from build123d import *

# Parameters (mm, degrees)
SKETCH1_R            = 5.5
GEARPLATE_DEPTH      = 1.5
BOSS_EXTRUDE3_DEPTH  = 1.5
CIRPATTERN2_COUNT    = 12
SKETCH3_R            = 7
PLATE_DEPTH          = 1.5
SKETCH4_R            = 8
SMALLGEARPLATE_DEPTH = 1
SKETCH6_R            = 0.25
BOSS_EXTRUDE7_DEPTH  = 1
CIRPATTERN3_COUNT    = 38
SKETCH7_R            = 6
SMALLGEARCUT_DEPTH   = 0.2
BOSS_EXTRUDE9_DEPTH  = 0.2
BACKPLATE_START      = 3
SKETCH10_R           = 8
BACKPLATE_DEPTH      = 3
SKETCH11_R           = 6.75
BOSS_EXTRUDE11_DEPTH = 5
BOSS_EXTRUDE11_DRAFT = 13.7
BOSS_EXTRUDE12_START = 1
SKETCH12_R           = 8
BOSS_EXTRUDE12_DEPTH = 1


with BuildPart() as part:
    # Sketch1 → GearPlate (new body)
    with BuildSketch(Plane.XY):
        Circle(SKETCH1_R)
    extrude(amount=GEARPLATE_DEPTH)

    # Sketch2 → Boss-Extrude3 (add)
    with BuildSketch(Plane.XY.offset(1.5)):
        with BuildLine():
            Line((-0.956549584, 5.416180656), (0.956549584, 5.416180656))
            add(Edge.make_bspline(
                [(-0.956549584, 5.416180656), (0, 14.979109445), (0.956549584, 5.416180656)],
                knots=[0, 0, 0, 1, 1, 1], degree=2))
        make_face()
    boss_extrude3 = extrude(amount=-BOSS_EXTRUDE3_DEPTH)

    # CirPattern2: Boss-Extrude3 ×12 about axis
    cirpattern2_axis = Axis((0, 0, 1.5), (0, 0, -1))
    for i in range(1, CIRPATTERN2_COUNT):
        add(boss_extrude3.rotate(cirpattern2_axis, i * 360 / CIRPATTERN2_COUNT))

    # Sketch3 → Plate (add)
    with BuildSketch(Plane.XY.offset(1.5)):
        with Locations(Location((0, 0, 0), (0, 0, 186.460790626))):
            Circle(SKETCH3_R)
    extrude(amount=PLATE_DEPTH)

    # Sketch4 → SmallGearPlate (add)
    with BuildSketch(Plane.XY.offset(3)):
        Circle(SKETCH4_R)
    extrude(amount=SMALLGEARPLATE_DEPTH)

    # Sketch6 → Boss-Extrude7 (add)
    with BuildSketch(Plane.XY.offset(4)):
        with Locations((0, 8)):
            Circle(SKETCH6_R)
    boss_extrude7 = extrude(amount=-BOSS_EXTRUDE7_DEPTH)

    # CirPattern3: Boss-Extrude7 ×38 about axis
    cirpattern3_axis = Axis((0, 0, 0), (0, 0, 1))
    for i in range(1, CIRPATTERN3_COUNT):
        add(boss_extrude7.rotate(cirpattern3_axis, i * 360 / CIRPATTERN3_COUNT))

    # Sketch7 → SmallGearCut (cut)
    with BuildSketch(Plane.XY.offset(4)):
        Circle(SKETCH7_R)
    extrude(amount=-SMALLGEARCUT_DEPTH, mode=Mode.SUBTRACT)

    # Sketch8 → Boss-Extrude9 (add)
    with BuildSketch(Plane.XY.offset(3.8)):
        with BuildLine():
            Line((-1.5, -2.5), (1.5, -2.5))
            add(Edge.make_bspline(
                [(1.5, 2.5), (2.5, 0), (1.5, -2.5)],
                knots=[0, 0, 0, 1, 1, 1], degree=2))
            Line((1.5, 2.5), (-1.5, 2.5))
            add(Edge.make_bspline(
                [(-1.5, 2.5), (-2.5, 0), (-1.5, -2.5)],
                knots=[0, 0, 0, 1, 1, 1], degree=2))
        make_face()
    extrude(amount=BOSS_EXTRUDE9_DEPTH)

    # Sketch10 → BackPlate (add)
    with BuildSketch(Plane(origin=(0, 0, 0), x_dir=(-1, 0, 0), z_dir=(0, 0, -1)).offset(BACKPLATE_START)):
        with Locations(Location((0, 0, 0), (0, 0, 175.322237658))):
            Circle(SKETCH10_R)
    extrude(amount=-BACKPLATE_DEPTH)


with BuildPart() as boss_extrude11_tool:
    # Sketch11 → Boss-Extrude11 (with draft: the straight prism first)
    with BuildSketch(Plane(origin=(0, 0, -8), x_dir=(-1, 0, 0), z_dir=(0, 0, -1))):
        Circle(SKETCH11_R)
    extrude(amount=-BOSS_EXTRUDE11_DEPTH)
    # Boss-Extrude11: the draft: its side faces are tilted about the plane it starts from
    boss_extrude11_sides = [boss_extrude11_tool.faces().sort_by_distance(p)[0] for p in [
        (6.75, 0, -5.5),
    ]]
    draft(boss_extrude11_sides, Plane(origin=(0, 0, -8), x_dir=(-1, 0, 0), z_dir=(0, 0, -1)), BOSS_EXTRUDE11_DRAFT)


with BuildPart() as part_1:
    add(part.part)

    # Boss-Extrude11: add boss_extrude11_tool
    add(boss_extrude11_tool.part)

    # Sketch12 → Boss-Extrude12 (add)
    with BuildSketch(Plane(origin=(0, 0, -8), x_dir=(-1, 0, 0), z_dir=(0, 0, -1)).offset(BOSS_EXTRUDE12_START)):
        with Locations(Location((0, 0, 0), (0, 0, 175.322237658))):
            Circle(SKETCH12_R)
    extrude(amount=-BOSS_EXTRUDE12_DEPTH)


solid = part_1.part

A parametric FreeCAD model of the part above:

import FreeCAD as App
import Part
import Sketcher


def faces_at(feature, points):
    """Names of the faces that lie closest to the given points."""
    faces = feature.Shape.Faces
    near = lambda p: min(range(len(faces)), key=lambda i: faces[i].distToShape(Part.Vertex(*p))[0])
    return sorted({f"Face{near(p) + 1}" for p in points})

doc = App.newDocument("Part")
body = doc.addObject("PartDesign::Body", "Body")

# Sketch on XY plane
sketch1 = body.newObject("Sketcher::SketchObject", "Sketch")
sketch1.AttachmentSupport = (doc.getObject("XY_Plane"), [""])
sketch1.MapMode = "FlatFace"
sketch1.addGeometry(Part.Circle(App.Vector(0, 0, 0), App.Vector(0, 0, 1), 5.5), False)
sketch1.addConstraint(Sketcher.Constraint("Coincident", 0, 3, -1, 1))
sketch1.addConstraint(Sketcher.Constraint("Diameter", 0, 11.0))
pad1 = body.newObject("PartDesign::Pad", "Pad")
pad1.Profile = sketch1
pad1.Length = 1.5

# Sketch on XY plane
sketch2 = body.newObject("Sketcher::SketchObject", "Sketch001")
sketch2.AttachmentSupport = (doc.getObject("XY_Plane"), [""])
sketch2.MapMode = "FlatFace"
sketch2.AttachmentOffset = App.Placement(App.Vector(0, 0, 1.5), App.Rotation())
sketch2.addGeometry(Part.LineSegment(App.Vector(-0.95655, 5.416181, 0), App.Vector(0.95655, 5.416181, 0)), False)
sketch2.addGeometry(Part.BSplineCurve([App.Vector(-0.95655, 5.416181, 0), App.Vector(0, 14.979109, 0), App.Vector(0.95655, 5.416181, 0)], [3, 3], [0, 1], False, 2, [1, 1, 1], False), False)
sketch2.addConstraint(Sketcher.Constraint("Block", 1))
sketch2.addConstraint(Sketcher.Constraint("Coincident", 0, 1, 1, 1))
sketch2.addConstraint(Sketcher.Constraint("Coincident", 1, 2, 0, 2))
pad2 = body.newObject("PartDesign::Pad", "Pad001")
pad2.Profile = sketch2
pad2.Length = 1.5
pad2.Reversed = True
doc.recompute()

polarpattern = body.newObject("PartDesign::PolarPattern", "PolarPattern")
polarpattern.Originals = [pad2]
polarpattern.Axis = (doc.getObject("Z_Axis"), [""])
polarpattern.Angle = 360
polarpattern.Occurrences = 12
body.Tip = polarpattern

# Sketch on XY plane
sketch3 = body.newObject("Sketcher::SketchObject", "Sketch002")
sketch3.AttachmentSupport = (doc.getObject("XY_Plane"), [""])
sketch3.MapMode = "FlatFace"
sketch3.AttachmentOffset = App.Placement(App.Vector(0, 0, 1.5), App.Rotation())
sketch3.addGeometry(Part.Circle(App.Vector(0, 0, 0), App.Vector(0, 0, 1), 7), False)
sketch3.addConstraint(Sketcher.Constraint("Coincident", 0, 3, -1, 1))
sketch3.addConstraint(Sketcher.Constraint("Diameter", 0, 14.0))
pad3 = body.newObject("PartDesign::Pad", "Pad002")
pad3.Profile = sketch3
pad3.Length = 1.5

# Sketch on XY plane
sketch4 = body.newObject("Sketcher::SketchObject", "Sketch003")
sketch4.AttachmentSupport = (doc.getObject("XY_Plane"), [""])
sketch4.MapMode = "FlatFace"
sketch4.AttachmentOffset = App.Placement(App.Vector(0, 0, 3), App.Rotation())
sketch4.addGeometry(Part.Circle(App.Vector(0, 0, 0), App.Vector(0, 0, 1), 8), False)
sketch4.addConstraint(Sketcher.Constraint("Coincident", 0, 3, -1, 1))
sketch4.addConstraint(Sketcher.Constraint("Diameter", 0, 16.0))
pad4 = body.newObject("PartDesign::Pad", "Pad003")
pad4.Profile = sketch4
pad4.Length = 1

# Sketch on XY plane
sketch5 = body.newObject("Sketcher::SketchObject", "Sketch004")
sketch5.AttachmentSupport = (doc.getObject("XY_Plane"), [""])
sketch5.MapMode = "FlatFace"
sketch5.AttachmentOffset = App.Placement(App.Vector(0, 0, 4), App.Rotation())
sketch5.addGeometry(Part.Circle(App.Vector(0, 8, 0), App.Vector(0, 0, 1), 0.25), False)
sketch5.addConstraint(Sketcher.Constraint("PointOnObject", 0, 3, -2))
sketch5.addConstraint(Sketcher.Constraint("Diameter", 0, 0.5))
sketch5.addConstraint(Sketcher.Constraint("DistanceY", -1, 1, 0, 3, 8.0))
pad5 = body.newObject("PartDesign::Pad", "Pad004")
pad5.Profile = sketch5
pad5.Length = 1
pad5.Reversed = True
doc.recompute()

polarpattern2 = body.newObject("PartDesign::PolarPattern", "PolarPattern001")
polarpattern2.Originals = [pad5]
polarpattern2.Axis = (doc.getObject("Z_Axis"), [""])
polarpattern2.Angle = 360
polarpattern2.Occurrences = 38
body.Tip = polarpattern2

# Sketch on XY plane
sketch6 = body.newObject("Sketcher::SketchObject", "Sketch005")
sketch6.AttachmentSupport = (doc.getObject("XY_Plane"), [""])
sketch6.MapMode = "FlatFace"
sketch6.AttachmentOffset = App.Placement(App.Vector(0, 0, 4), App.Rotation())
sketch6.addGeometry(Part.Circle(App.Vector(0, 0, 0), App.Vector(0, 0, 1), 6), False)
sketch6.addConstraint(Sketcher.Constraint("Coincident", 0, 3, -1, 1))
sketch6.addConstraint(Sketcher.Constraint("Diameter", 0, 12.0))
pocket1 = body.newObject("PartDesign::Pocket", "Pocket")
pocket1.Profile = sketch6
pocket1.Length = 0.2

# Sketch on XY plane
sketch7 = body.newObject("Sketcher::SketchObject", "Sketch006")
sketch7.AttachmentSupport = (doc.getObject("XY_Plane"), [""])
sketch7.MapMode = "FlatFace"
sketch7.AttachmentOffset = App.Placement(App.Vector(0, 0, 3.8), App.Rotation())
sketch7.addGeometry(Part.LineSegment(App.Vector(-1.5, -2.5, 0), App.Vector(1.5, -2.5, 0)), False)
sketch7.addGeometry(Part.BSplineCurve([App.Vector(1.5, 2.5, 0), App.Vector(2.5, 0, 0), App.Vector(1.5, -2.5, 0)], [3, 3], [0, 1], False, 2, [1, 1, 1], False), False)
sketch7.addGeometry(Part.LineSegment(App.Vector(1.5, 2.5, 0), App.Vector(-1.5, 2.5, 0)), False)
sketch7.addGeometry(Part.BSplineCurve([App.Vector(-1.5, 2.5, 0), App.Vector(-2.5, 0, 0), App.Vector(-1.5, -2.5, 0)], [3, 3], [0, 1], False, 2, [1, 1, 1], False), False)
sketch7.addConstraint(Sketcher.Constraint("Block", 1))
sketch7.addConstraint(Sketcher.Constraint("Block", 3))
sketch7.addConstraint(Sketcher.Constraint("Coincident", 0, 2, 1, 2))
sketch7.addConstraint(Sketcher.Constraint("Coincident", 1, 1, 2, 1))
sketch7.addConstraint(Sketcher.Constraint("Coincident", 2, 2, 3, 1))
sketch7.addConstraint(Sketcher.Constraint("Coincident", 3, 2, 0, 1))
pad6 = body.newObject("PartDesign::Pad", "Pad005")
pad6.Profile = sketch7
pad6.Length = 0.2

# Sketch on XY plane
sketch8 = body.newObject("Sketcher::SketchObject", "Sketch007")
sketch8.AttachmentSupport = (doc.getObject("XY_Plane"), [""])
sketch8.MapMode = "FlatFace"
sketch8.AttachmentOffset = App.Placement(App.Vector(0, 0, -3), App.Rotation())
sketch8.addGeometry(Part.Circle(App.Vector(0, 0, 0), App.Vector(0, 0, 1), 8), False)
sketch8.addConstraint(Sketcher.Constraint("Coincident", 0, 3, -1, 1))
sketch8.addConstraint(Sketcher.Constraint("Diameter", 0, 16.0))
pad7 = body.newObject("PartDesign::Pad", "Pad006")
pad7.Profile = sketch8
pad7.Length = 3
body2 = doc.addObject("PartDesign::Body", "Body001")

# Sketch on XY plane
sketch9 = body2.newObject("Sketcher::SketchObject", "Sketch008")
sketch9.AttachmentSupport = (doc.getObject("XY_Plane001"), [""])
sketch9.MapMode = "FlatFace"
sketch9.AttachmentOffset = App.Placement(App.Vector(0, 0, -8), App.Rotation())
sketch9.addGeometry(Part.Circle(App.Vector(0, 0, 0), App.Vector(0, 0, 1), 6.75), False)
sketch9.addConstraint(Sketcher.Constraint("Coincident", 0, 3, -1, 1))
sketch9.addConstraint(Sketcher.Constraint("Diameter", 0, 13.5))
pad8 = body2.newObject("PartDesign::Pad", "Pad007")
pad8.Profile = sketch9
pad8.Length = 5
doc.recompute()

datumplane = body2.newObject("PartDesign::Plane", "DatumPlane")
datumplane.AttachmentSupport = (doc.getObject("XY_Plane001"), [""])
datumplane.MapMode = "FlatFace"
datumplane.AttachmentOffset = App.Placement(App.Vector(0, 0, -8), App.Rotation())
draft = body2.newObject("PartDesign::Draft", "Draft")
draft.Base = (pad8, faces_at(pad8, [(6.75, 0, -5.5)]))
draft.NeutralPlane = (datumplane, [""])
draft.Angle = 13.7
draft.Reversed = True
doc.recompute()

boolean = body.newObject("PartDesign::Boolean", "Boolean")
boolean.Type = "Fuse"
boolean.addObjects([body2])

# Sketch on XY plane
sketch10 = body.newObject("Sketcher::SketchObject", "Sketch009")
sketch10.AttachmentSupport = (doc.getObject("XY_Plane"), [""])
sketch10.MapMode = "FlatFace"
sketch10.AttachmentOffset = App.Placement(App.Vector(0, 0, -9), App.Rotation())
sketch10.addGeometry(Part.Circle(App.Vector(0, 0, 0), App.Vector(0, 0, 1), 8), False)
sketch10.addConstraint(Sketcher.Constraint("Coincident", 0, 3, -1, 1))
sketch10.addConstraint(Sketcher.Constraint("Diameter", 0, 16.0))
pad9 = body.newObject("PartDesign::Pad", "Pad008")
pad9.Profile = sketch10
pad9.Length = 1

doc.recompute()
